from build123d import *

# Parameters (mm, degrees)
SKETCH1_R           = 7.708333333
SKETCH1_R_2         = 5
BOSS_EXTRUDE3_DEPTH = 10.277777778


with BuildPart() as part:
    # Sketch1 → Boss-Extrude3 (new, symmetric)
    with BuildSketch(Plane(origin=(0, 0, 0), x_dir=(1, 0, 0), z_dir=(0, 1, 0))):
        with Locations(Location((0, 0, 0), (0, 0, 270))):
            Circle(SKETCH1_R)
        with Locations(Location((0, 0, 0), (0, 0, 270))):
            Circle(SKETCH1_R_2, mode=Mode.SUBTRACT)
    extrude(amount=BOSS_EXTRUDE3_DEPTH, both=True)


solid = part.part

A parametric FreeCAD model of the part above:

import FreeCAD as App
import Part
import Sketcher

doc = App.newDocument("Part")
body = doc.addObject("PartDesign::Body", "Body")

sketch1 = body.newObject("Sketcher::SketchObject", "Sketch")
sketch1.AttachmentSupport = (doc.getObject("XZ_Plane"), [""])
sketch1.MapMode = "FlatFace"
sketch1.addGeometry(Part.Circle(App.Vector(0, 0, 0), App.Vector(0, 0, 1), 8), False)
sketch1.addGeometry(Part.Circle(App.Vector(0, 0, 0), App.Vector(0, 0, 1), 5), False)
sketch1.addConstraint(Sketcher.Constraint("Coincident", 0, 3, -1, 1))
sketch1.addConstraint(Sketcher.Constraint("Coincident", 1, 3, -1, 1))
sketch1.addConstraint(Sketcher.Constraint("Diameter", 1, 10.0))
sketch1.addConstraint(Sketcher.Constraint("Diameter", 0, 15.416667))
pad1 = body.newObject("PartDesign::Pad", "Pad")
pad1.Profile = sketch1
pad1.Length = 20.555556
pad1.Midplane = True

doc.recompute()
